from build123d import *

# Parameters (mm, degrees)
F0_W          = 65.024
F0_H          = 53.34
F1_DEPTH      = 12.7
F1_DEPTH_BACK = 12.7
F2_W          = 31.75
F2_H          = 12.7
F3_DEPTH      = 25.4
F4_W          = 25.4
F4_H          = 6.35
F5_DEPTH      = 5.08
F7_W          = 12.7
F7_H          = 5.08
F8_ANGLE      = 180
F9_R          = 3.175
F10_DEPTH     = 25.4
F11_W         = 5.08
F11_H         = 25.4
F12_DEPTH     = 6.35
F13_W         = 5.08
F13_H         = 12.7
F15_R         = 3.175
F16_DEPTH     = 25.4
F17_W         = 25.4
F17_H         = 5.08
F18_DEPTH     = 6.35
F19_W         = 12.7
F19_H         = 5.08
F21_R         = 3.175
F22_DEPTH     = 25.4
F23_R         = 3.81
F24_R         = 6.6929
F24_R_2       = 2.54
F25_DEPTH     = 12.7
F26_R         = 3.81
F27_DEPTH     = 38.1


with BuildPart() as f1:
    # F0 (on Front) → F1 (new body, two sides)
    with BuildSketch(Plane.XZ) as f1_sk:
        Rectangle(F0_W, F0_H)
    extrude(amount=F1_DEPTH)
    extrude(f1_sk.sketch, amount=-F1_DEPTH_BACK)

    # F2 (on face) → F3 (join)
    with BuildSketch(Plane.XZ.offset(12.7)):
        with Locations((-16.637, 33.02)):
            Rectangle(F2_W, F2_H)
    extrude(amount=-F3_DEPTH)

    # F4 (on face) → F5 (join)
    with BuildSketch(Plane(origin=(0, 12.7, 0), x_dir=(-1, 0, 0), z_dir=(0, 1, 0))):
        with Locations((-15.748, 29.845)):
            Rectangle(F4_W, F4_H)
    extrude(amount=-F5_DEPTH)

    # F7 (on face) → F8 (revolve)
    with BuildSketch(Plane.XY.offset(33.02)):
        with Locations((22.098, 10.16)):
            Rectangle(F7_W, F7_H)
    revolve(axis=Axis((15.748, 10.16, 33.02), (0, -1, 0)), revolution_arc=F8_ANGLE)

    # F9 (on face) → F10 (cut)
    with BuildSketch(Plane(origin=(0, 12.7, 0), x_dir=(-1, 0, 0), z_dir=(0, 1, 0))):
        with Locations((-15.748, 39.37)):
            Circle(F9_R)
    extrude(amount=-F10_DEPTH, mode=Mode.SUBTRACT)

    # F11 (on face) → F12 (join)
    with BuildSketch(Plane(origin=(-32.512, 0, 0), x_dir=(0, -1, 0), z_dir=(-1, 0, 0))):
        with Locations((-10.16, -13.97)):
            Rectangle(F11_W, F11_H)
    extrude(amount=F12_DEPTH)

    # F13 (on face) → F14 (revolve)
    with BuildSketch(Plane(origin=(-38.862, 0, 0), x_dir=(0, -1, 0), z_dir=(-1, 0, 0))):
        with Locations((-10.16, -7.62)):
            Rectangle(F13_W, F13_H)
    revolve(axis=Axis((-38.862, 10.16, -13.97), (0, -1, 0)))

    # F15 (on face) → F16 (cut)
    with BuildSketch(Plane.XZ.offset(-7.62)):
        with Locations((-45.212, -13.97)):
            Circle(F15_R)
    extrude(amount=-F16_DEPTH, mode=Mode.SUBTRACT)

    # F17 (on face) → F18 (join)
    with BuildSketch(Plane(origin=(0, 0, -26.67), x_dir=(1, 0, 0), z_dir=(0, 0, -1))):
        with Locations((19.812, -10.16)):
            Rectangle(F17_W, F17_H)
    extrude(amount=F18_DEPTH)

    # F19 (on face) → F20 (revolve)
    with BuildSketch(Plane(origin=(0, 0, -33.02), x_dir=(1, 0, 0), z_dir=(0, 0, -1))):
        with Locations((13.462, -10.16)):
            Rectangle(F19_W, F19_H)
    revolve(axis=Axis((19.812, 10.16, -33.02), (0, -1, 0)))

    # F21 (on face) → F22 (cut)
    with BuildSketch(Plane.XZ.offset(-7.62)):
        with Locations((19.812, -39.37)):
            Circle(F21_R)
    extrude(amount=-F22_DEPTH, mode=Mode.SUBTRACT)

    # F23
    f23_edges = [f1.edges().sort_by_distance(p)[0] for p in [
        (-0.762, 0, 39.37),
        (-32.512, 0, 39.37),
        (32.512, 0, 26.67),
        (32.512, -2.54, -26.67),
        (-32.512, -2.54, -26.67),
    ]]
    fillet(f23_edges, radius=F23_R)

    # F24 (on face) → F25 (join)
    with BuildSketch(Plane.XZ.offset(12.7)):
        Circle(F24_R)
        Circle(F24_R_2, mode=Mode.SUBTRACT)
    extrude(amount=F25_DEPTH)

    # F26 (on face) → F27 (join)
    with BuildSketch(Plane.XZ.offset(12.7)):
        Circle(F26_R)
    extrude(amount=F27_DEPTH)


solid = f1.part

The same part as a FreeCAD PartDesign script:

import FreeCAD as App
import Part
import Sketcher
from FreeCAD import Vector
Q = App.Units.Quantity


def edges_at(feature, points):
    """Names of the edges that pass closest to the given points."""
    edges = feature.Shape.Edges
    near = lambda p: min(range(len(edges)), key=lambda i: edges[i].distToShape(Part.Vertex(*p))[0])
    return sorted({f"Edge{near(p) + 1}" for p in points})

doc = App.newDocument("Part")
body = doc.addObject("PartDesign::Body", "Body")

sketch1 = body.newObject("Sketcher::SketchObject", "Sketch")
sketch1.AttachmentSupport = (doc.getObject("XZ_Plane"), [""])
sketch1.MapMode = "FlatFace"
sketch1.addGeometry([
    Part.LineSegment(Vector(-32.512, 26.67, 0), Vector(-32.512, -26.67, 0)),
    Part.LineSegment(Vector(-32.512, -26.67, 0), Vector(32.512, -26.67, 0)),
    Part.LineSegment(Vector(32.512, -26.67, 0), Vector(32.512, 26.67, 0)),
    Part.LineSegment(Vector(32.512, 26.67, 0), Vector(-32.512, 26.67, 0)),
], False)
sketch1.addConstraint([
    Sketcher.Constraint("Coincident", 0, 2, 1, 1),
    Sketcher.Constraint("Coincident", 1, 2, 2, 1),
    Sketcher.Constraint("Coincident", 2, 2, 3, 1),
    Sketcher.Constraint("Coincident", 3, 2, 0, 1),
    Sketcher.Constraint("Vertical", 0),
    Sketcher.Constraint("Horizontal", 1),
    Sketcher.Constraint("Vertical", 2),
    Sketcher.Constraint("Horizontal", 3),
    Sketcher.Constraint("Symmetric", 0, 2, 2, 2, -1, 1),
    Sketcher.Constraint("DistanceY", 0, 2, 0, 1, Q("2.1 in")),
    Sketcher.Constraint("DistanceX", 1, 1, 1, 2, Q("2.56 in")),
])
pad1 = body.newObject("PartDesign::Pad", "Pad")
pad1.Profile = sketch1
pad1.Type = "TwoLengths"
pad1.Length = Q("0.5 in")
pad1.Length2 = Q("0.5 in")

sketch2 = body.newObject("Sketcher::SketchObject", "Sketch001")
sketch2.AttachmentSupport = (doc.getObject("XZ_Plane"), [""])
sketch2.MapMode = "FlatFace"
sketch2.AttachmentOffset = App.Placement(Vector(0, 0, 0.5 * 25.4), App.Rotation())
sketch2.addGeometry([
    Part.LineSegment(Vector(-32.512, 39.37, 0), Vector(-32.512, 26.67, 0)),
    Part.LineSegment(Vector(-32.512, 26.67, 0), Vector(-0.762, 26.67, 0)),
    Part.LineSegment(Vector(-0.762, 26.67, 0), Vector(-0.762, 39.37, 0)),
    Part.LineSegment(Vector(-0.762, 39.37, 0), Vector(-32.512, 39.37, 0)),
], False)
sketch2.addConstraint([
    Sketcher.Constraint("Coincident", 0, 2, 1, 1),
    Sketcher.Constraint("Coincident", 1, 2, 2, 1),
    Sketcher.Constraint("Coincident", 2, 2, 3, 1),
    Sketcher.Constraint("Coincident", 3, 2, 0, 1),
    Sketcher.Constraint("Vertical", 0),
    Sketcher.Constraint("Horizontal", 1),
    Sketcher.Constraint("Vertical", 2),
    Sketcher.Constraint("Horizontal", 3),
    Sketcher.Constraint("DistanceY", 0, 2, 0, 1, Q("0.5 in")),
    Sketcher.Constraint("DistanceX", 1, 1, 1, 2, Q("1.25 in")),
    Sketcher.Constraint("DistanceX", 0, 2, -1, 1, Q("1.28 in")),
    Sketcher.Constraint("DistanceY", -1, 1, 0, 2, Q("1.05 in")),
])
pad2 = body.newObject("PartDesign::Pad", "Pad001")
pad2.Profile = sketch2
pad2.Length = Q("1 in")
pad2.Reversed = True

sketch3 = body.newObject("Sketcher::SketchObject", "Sketch002")
sketch3.AttachmentSupport = (doc.getObject("XZ_Plane"), [""])
sketch3.MapMode = "FlatFace"
sketch3.AttachmentOffset = App.Placement(Vector(0, 0, -0.5 * 25.4), App.Rotation())
sketch3.addGeometry([
    Part.LineSegment(Vector(28.448, 33.02, 0), Vector(28.448, 26.67, 0)),
    Part.LineSegment(Vector(28.448, 26.67, 0), Vector(3.048, 26.67, 0)),
    Part.LineSegment(Vector(3.048, 26.67, 0), Vector(3.048, 33.02, 0)),
    Part.LineSegment(Vector(3.048, 33.02, 0), Vector(28.448, 33.02, 0)),
], False)
sketch3.addConstraint([
    Sketcher.Constraint("Coincident", 0, 2, 1, 1),
    Sketcher.Constraint("Coincident", 1, 2, 2, 1),
    Sketcher.Constraint("Coincident", 2, 2, 3, 1),
    Sketcher.Constraint("Coincident", 3, 2, 0, 1),
    Sketcher.Constraint("Vertical", 0),
    Sketcher.Constraint("Horizontal", 1),
    Sketcher.Constraint("Vertical", 2),
    Sketcher.Constraint("Horizontal", 3),
    Sketcher.Constraint("DistanceX", 1, 2, 1, 1, Q("1 in")),
    Sketcher.Constraint("DistanceY", 0, 2, 0, 1, Q("0.25 in")),
    Sketcher.Constraint("DistanceY", -1, 1, 2, 2, Q("1.3 in")),
    Sketcher.Constraint("DistanceX", -1, 1, 0, 2, Q("1.12 in")),
])
pad3 = body.newObject("PartDesign::Pad", "Pad002")
pad3.Profile = sketch3
pad3.Length = Q("0.2 in")

sketch4 = body.newObject("Sketcher::SketchObject", "Sketch003")
sketch4.AttachmentSupport = (doc.getObject("XY_Plane"), [""])
sketch4.MapMode = "FlatFace"
sketch4.AttachmentOffset = App.Placement(Vector(0, 0, 1.3 * 25.4), App.Rotation())
sketch4.addGeometry([
    Part.LineSegment(Vector(15.748, 12.7, 0), Vector(15.748, 7.62, 0)),
    Part.LineSegment(Vector(15.748, 7.62, 0), Vector(28.448, 7.62, 0)),
    Part.LineSegment(Vector(28.448, 7.62, 0), Vector(28.448, 12.7, 0)),
    Part.LineSegment(Vector(28.448, 12.7, 0), Vector(15.748, 12.7, 0)),
], False)
sketch4.addGeometry(Part.LineSegment(Vector(15.748, 12.7, 0), Vector(15.748, 7.62, 0)), True)
sketch4.addConstraint([
    Sketcher.Constraint("Coincident", 0, 2, 1, 1),
    Sketcher.Constraint("Coincident", 1, 2, 2, 1),
    Sketcher.Constraint("Coincident", 2, 2, 3, 1),
    Sketcher.Constraint("Coincident", 3, 2, 0, 1),
    Sketcher.Constraint("Vertical", 0),
    Sketcher.Constraint("Horizontal", 1),
    Sketcher.Constraint("Vertical", 2),
    Sketcher.Constraint("Horizontal", 3),
    Sketcher.Constraint("Vertical", 4),
    Sketcher.Constraint("Coincident", 4, 1, 3, 2),
    Sketcher.Constraint("Horizontal", 1, 2, 4, 2),
    Sketcher.Constraint("DistanceX", 1, 1, 1, 2, Q("0.5 in")),
    Sketcher.Constraint("DistanceY", 0, 2, 0, 1, Q("0.2 in")),
    Sketcher.Constraint("DistanceY", -1, 1, 0, 2, Q("0.3 in")),
    Sketcher.Constraint("DistanceX", -1, 1, 0, 2, Q("0.62 in")),
])
revolution = body.newObject("PartDesign::Revolution", "Revolution")
revolution.Profile = sketch4
revolution.ReferenceAxis = (sketch4, ["Axis0"])
revolution.Angle = 180

sketch5 = body.newObject("Sketcher::SketchObject", "Sketch004")
sketch5.AttachmentSupport = (doc.getObject("XZ_Plane"), [""])
sketch5.MapMode = "FlatFace"
sketch5.AttachmentOffset = App.Placement(Vector(0, 0, -0.5 * 25.4), App.Rotation())
sketch5.addGeometry(Part.Circle(Vector(15.748, 39.37, 0), Vector(0, 0, 1), 3.175), False)
sketch5.addConstraint([
    Sketcher.Constraint("Diameter", 0, Q("0.25 in")),
    Sketcher.Constraint("DistanceX", -1, 1, 0, 3, Q("0.62 in")),
    Sketcher.Constraint("DistanceY", -1, 1, 0, 3, Q("1.55 in")),
])
pocket1 = body.newObject("PartDesign::Pocket", "Pocket")
pocket1.Profile = sketch5
pocket1.Length = Q("1 in")
pocket1.Reversed = True

sketch6 = body.newObject("Sketcher::SketchObject", "Sketch005")
sketch6.AttachmentSupport = (doc.getObject("YZ_Plane"), [""])
sketch6.MapMode = "FlatFace"
sketch6.AttachmentOffset = App.Placement(Vector(0, 0, -1.28 * 25.4), App.Rotation())
sketch6.addGeometry([
    Part.LineSegment(Vector(12.7, -1.27, 0), Vector(12.7, -26.67, 0)),
    Part.LineSegment(Vector(12.7, -26.67, 0), Vector(7.62, -26.67, 0)),
    Part.LineSegment(Vector(7.62, -26.67, 0), Vector(7.62, -1.27, 0)),
    Part.LineSegment(Vector(7.62, -1.27, 0), Vector(12.7, -1.27, 0)),
], False)
sketch6.addConstraint([
    Sketcher.Constraint("Coincident", 0, 2, 1, 1),
    Sketcher.Constraint("Coincident", 1, 2, 2, 1),
    Sketcher.Constraint("Coincident", 2, 2, 3, 1),
    Sketcher.Constraint("Coincident", 3, 2, 0, 1),
    Sketcher.Constraint("Vertical", 0),
    Sketcher.Constraint("Horizontal", 1),
    Sketcher.Constraint("Vertical", 2),
    Sketcher.Constraint("Horizontal", 3),
    Sketcher.Constraint("DistanceY", 0, 2, 0, 1, Q("1 in")),
    Sketcher.Constraint("DistanceX", 1, 2, 1, 1, Q("0.2 in")),
    Sketcher.Constraint("DistanceX", -1, 1, 0, 2, Q("0.5 in")),
    Sketcher.Constraint("DistanceY", 0, 2, -1, 1, Q("1.05 in")),
])
pad4 = body.newObject("PartDesign::Pad", "Pad003")
pad4.Profile = sketch6
pad4.Length = Q("0.25 in")
pad4.Reversed = True

sketch7 = body.newObject("Sketcher::SketchObject", "Sketch006")
sketch7.AttachmentSupport = (doc.getObject("YZ_Plane"), [""])
sketch7.MapMode = "FlatFace"
sketch7.AttachmentOffset = App.Placement(Vector(0, 0, -1.53 * 25.4), App.Rotation())
sketch7.addGeometry([
    Part.LineSegment(Vector(12.7, -1.27, 0), Vector(12.7, -13.97, 0)),
    Part.LineSegment(Vector(12.7, -13.97, 0), Vector(7.62, -13.97, 0)),
    Part.LineSegment(Vector(7.62, -13.97, 0), Vector(7.62, -1.27, 0)),
    Part.LineSegment(Vector(7.62, -1.27, 0), Vector(12.7, -1.27, 0)),
], False)
sketch7.addGeometry(Part.LineSegment(Vector(12.7, -13.97, 0), Vector(7.62, -13.97, 0)), True)
sketch7.addConstraint([
    Sketcher.Constraint("Coincident", 0, 2, 1, 1),
    Sketcher.Constraint("Coincident", 1, 2, 2, 1),
    Sketcher.Constraint("Coincident", 2, 2, 3, 1),
    Sketcher.Constraint("Coincident", 3, 2, 0, 1),
    Sketcher.Constraint("Vertical", 0),
    Sketcher.Constraint("Horizontal", 1),
    Sketcher.Constraint("Vertical", 2),
    Sketcher.Constraint("Horizontal", 3),
    Sketcher.Constraint("Horizontal", 4),
    Sketcher.Constraint("Coincident", 4, 1, 0, 2),
    Sketcher.Constraint("Vertical", 2, 2, 4, 2),
    Sketcher.Constraint("DistanceX", 1, 2, 1, 1, Q("0.2 in")),
    Sketcher.Constraint("DistanceY", 0, 2, 0, 1, Q("0.5 in")),
    Sketcher.Constraint("DistanceX", -1, 1, 0, 2, Q("0.5 in")),
    Sketcher.Constraint("DistanceY", 0, 2, -1, 1, Q("0.55 in")),
])
revolution2 = body.newObject("PartDesign::Revolution", "Revolution001")
revolution2.Profile = sketch7
revolution2.ReferenceAxis = (sketch7, ["Axis0"])
revolution2.Angle = 360

sketch8 = body.newObject("Sketcher::SketchObject", "Sketch007")
sketch8.AttachmentSupport = (doc.getObject("XZ_Plane"), [""])
sketch8.MapMode = "FlatFace"
sketch8.AttachmentOffset = App.Placement(Vector(0, 0, -0.3 * 25.4), App.Rotation())
sketch8.addGeometry(Part.Circle(Vector(-45.212, -13.97, 0), Vector(0, 0, 1), 3.175), False)
sketch8.addConstraint([
    Sketcher.Constraint("Diameter", 0, Q("0.25 in")),
    Sketcher.Constraint("DistanceX", 0, 3, -1, 1, Q("1.78 in")),
    Sketcher.Constraint("DistanceY", 0, 3, -1, 1, Q("0.55 in")),
])
pocket2 = body.newObject("PartDesign::Pocket", "Pocket001")
pocket2.Profile = sketch8
pocket2.Length = Q("1 in")

sketch9 = body.newObject("Sketcher::SketchObject", "Sketch008")
sketch9.AttachmentSupport = (doc.getObject("XY_Plane"), [""])
sketch9.MapMode = "FlatFace"
sketch9.AttachmentOffset = App.Placement(Vector(0, 0, -1.05 * 25.4), App.Rotation())
sketch9.addGeometry([
    Part.LineSegment(Vector(7.112, 7.62, 0), Vector(7.112, 12.7, 0)),
    Part.LineSegment(Vector(7.112, 12.7, 0), Vector(32.512, 12.7, 0)),
    Part.LineSegment(Vector(32.512, 12.7, 0), Vector(32.512, 7.62, 0)),
    Part.LineSegment(Vector(32.512, 7.62, 0), Vector(7.112, 7.62, 0)),
], False)
sketch9.addConstraint([
    Sketcher.Constraint("Coincident", 0, 2, 1, 1),
    Sketcher.Constraint("Coincident", 1, 2, 2, 1),
    Sketcher.Constraint("Coincident", 2, 2, 3, 1),
    Sketcher.Constraint("Coincident", 3, 2, 0, 1),
    Sketcher.Constraint("Vertical", 0),
    Sketcher.Constraint("Horizontal", 1),
    Sketcher.Constraint("Vertical", 2),
    Sketcher.Constraint("Horizontal", 3),
    Sketcher.Constraint("DistanceX", 1, 1, 1, 2, Q("1 in")),
    Sketcher.Constraint("DistanceY", 0, 1, 0, 2, Q("0.2 in")),
    Sketcher.Constraint("DistanceY", -1, 1, 0, 2, Q("0.5 in")),
    Sketcher.Constraint("DistanceX", -1, 1, 0, 2, Q("0.28 in")),
])
pad5 = body.newObject("PartDesign::Pad", "Pad004")
pad5.Profile = sketch9
pad5.Length = Q("0.25 in")
pad5.Reversed = True

sketch10 = body.newObject("Sketcher::SketchObject", "Sketch009")
sketch10.AttachmentSupport = (doc.getObject("XY_Plane"), [""])
sketch10.MapMode = "FlatFace"
sketch10.AttachmentOffset = App.Placement(Vector(0, 0, -1.3 * 25.4), App.Rotation())
sketch10.addGeometry([
    Part.LineSegment(Vector(7.112, 7.62, 0), Vector(7.112, 12.7, 0)),
    Part.LineSegment(Vector(7.112, 12.7, 0), Vector(19.812, 12.7, 0)),
    Part.LineSegment(Vector(19.812, 12.7, 0), Vector(19.812, 7.62, 0)),
    Part.LineSegment(Vector(19.812, 7.62, 0), Vector(7.112, 7.62, 0)),
], False)
sketch10.addGeometry(Part.LineSegment(Vector(19.812, 12.7, 0), Vector(19.812, 7.62, 0)), True)
sketch10.addConstraint([
    Sketcher.Constraint("Coincident", 0, 2, 1, 1),
    Sketcher.Constraint("Coincident", 1, 2, 2, 1),
    Sketcher.Constraint("Coincident", 2, 2, 3, 1),
    Sketcher.Constraint("Coincident", 3, 2, 0, 1),
    Sketcher.Constraint("Vertical", 0),
    Sketcher.Constraint("Horizontal", 1),
    Sketcher.Constraint("Vertical", 2),
    Sketcher.Constraint("Horizontal", 3),
    Sketcher.Constraint("Vertical", 4),
    Sketcher.Constraint("Coincident", 4, 1, 1, 2),
    Sketcher.Constraint("Horizontal", 3, 2, 4, 2),
    Sketcher.Constraint("DistanceX", 1, 1, 1, 2, Q("0.5 in")),
    Sketcher.Constraint("DistanceY", 0, 1, 0, 2, Q("0.2 in")),
    Sketcher.Constraint("DistanceY", -1, 1, 0, 2, Q("0.5 in")),
    Sketcher.Constraint("DistanceX", -1, 1, 0, 2, Q("0.28 in")),
])
revolution3 = body.newObject("PartDesign::Revolution", "Revolution002")
revolution3.Profile = sketch10
revolution3.ReferenceAxis = (sketch10, ["Axis0"])
revolution3.Angle = 360

sketch11 = body.newObject("Sketcher::SketchObject", "Sketch010")
sketch11.AttachmentSupport = (doc.getObject("XZ_Plane"), [""])
sketch11.MapMode = "FlatFace"
sketch11.AttachmentOffset = App.Placement(Vector(0, 0, -0.3 * 25.4), App.Rotation())
sketch11.addGeometry(Part.Circle(Vector(19.812, -39.37, 0), Vector(0, 0, 1), 3.175), False)
sketch11.addConstraint([
    Sketcher.Constraint("Diameter", 0, Q("0.25 in")),
    Sketcher.Constraint("DistanceX", -1, 1, 0, 3, Q("0.78 in")),
    Sketcher.Constraint("DistanceY", 0, 3, -1, 1, Q("1.55 in")),
])
pocket3 = body.newObject("PartDesign::Pocket", "Pocket002")
pocket3.Profile = sketch11
pocket3.Length = Q("1 in")
doc.recompute()

fillet = body.newObject("PartDesign::Fillet", "Fillet")
fillet.Base = (pocket3, edges_at(pocket3, [
    (-0.762, 0, 39.37),
    (-32.512, 0, 39.37),
    (32.512, 0, 26.67),
    (32.512, -2.54, -26.67),
    (-32.512, -2.54, -26.67),
]))
fillet.Radius = Q("0.15 in")

sketch12 = body.newObject("Sketcher::SketchObject", "Sketch011")
sketch12.AttachmentSupport = (doc.getObject("XZ_Plane"), [""])
sketch12.MapMode = "FlatFace"
sketch12.AttachmentOffset = App.Placement(Vector(0, 0, 0.5 * 25.4), App.Rotation())
sketch12.addGeometry([
    Part.Circle(Vector(0, 0, 0), Vector(0, 0, 1), 6.6929),
    Part.Circle(Vector(0, 0, 0), Vector(0, 0, 1), 2.54),
], False)
sketch12.addConstraint([
    Sketcher.Constraint("Coincident", 0, 3, -1, 1),
    Sketcher.Constraint("Coincident", 1, 3, -1, 1),
    Sketcher.Constraint("Diameter", 1, Q("0.2 in")),
    Sketcher.Constraint("Diameter", 0, Q("0.527 in")),
])
pad6 = body.newObject("PartDesign::Pad", "Pad005")
pad6.Profile = sketch12
pad6.Length = Q("0.5 in")

sketch13 = body.newObject("Sketcher::SketchObject", "Sketch012")
sketch13.AttachmentSupport = (doc.getObject("XZ_Plane"), [""])
sketch13.MapMode = "FlatFace"
sketch13.AttachmentOffset = App.Placement(Vector(0, 0, 0.5 * 25.4), App.Rotation())
sketch13.addGeometry(Part.Circle(Vector(0, 0, 0), Vector(0, 0, 1), 3.81), False)
sketch13.addConstraint([
    Sketcher.Constraint("Coincident", 0, 3, -1, 1),
    Sketcher.Constraint("Diameter", 0, Q("0.3 in")),
])
pad7 = body.newObject("PartDesign::Pad", "Pad006")
pad7.Profile = sketch13
pad7.Length = Q("1.5 in")

doc.recompute()
